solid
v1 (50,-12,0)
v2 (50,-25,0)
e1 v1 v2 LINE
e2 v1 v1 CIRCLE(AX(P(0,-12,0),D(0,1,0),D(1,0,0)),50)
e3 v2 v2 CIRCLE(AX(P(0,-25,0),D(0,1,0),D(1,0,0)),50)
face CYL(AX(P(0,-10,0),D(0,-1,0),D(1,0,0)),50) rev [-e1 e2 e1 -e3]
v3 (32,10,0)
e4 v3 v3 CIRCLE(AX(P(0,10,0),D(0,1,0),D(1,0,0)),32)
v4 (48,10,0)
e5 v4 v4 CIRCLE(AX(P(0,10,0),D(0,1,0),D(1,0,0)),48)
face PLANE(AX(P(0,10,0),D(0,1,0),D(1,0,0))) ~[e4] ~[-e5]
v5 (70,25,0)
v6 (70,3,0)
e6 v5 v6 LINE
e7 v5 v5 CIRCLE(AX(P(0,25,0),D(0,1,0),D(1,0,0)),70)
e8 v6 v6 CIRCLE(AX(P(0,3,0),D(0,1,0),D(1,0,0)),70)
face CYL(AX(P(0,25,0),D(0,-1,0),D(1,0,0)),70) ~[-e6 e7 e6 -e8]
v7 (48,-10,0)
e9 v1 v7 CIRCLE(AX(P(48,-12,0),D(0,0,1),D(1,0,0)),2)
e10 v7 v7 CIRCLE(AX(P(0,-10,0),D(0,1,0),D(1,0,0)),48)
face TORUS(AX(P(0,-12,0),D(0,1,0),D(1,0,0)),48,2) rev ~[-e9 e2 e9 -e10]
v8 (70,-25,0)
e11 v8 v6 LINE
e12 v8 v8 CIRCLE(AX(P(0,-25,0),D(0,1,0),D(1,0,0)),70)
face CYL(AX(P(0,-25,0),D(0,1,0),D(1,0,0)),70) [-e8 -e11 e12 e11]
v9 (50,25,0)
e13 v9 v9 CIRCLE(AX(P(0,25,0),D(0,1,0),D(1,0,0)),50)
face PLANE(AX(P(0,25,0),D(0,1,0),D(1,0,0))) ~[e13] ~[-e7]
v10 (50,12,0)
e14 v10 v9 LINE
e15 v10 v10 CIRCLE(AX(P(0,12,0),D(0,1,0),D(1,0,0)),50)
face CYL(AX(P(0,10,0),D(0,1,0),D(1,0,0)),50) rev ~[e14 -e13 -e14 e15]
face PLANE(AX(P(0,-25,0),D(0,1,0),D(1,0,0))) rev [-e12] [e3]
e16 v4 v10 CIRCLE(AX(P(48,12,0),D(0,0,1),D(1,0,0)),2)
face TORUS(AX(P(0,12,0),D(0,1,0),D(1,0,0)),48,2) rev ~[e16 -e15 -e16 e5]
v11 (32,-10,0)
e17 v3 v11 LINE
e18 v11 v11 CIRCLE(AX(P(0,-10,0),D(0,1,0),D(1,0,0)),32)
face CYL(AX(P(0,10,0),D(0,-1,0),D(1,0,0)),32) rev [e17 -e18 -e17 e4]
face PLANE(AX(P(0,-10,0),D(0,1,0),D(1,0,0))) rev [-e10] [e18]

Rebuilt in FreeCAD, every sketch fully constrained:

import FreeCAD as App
import Part
import Sketcher
from FreeCAD import Vector


def edges_at(feature, points):
    """Names of the edges that pass closest to the given points."""
    edges = feature.Shape.Edges
    near = lambda p: min(range(len(edges)), key=lambda i: edges[i].distToShape(Part.Vertex(*p))[0])
    return sorted({f"Edge{near(p) + 1}" for p in points})


def add_polygon(sketch, points):
    """Adds a closed chain of lines whose ends are joined by coincident constraints."""
    first, n = sketch.GeometryCount, len(points)
    for a, b in zip(points, points[1:] + points[:1]):
        sketch.addGeometry(Part.LineSegment(App.Vector(*a, 0), App.Vector(*b, 0)), False)
    for i in range(n):
        sketch.addConstraint(Sketcher.Constraint("Coincident", first + i, 2, first + (i + 1) % n, 1))

doc = App.newDocument("Part")
body = doc.addObject("PartDesign::Body", "Body")

# Sketch on XY plane
sketch1 = body.newObject("Sketcher::SketchObject", "Sketch")
sketch1.AttachmentSupport = (doc.getObject("XY_Plane"), [""])
sketch1.MapMode = "FlatFace"
add_polygon(sketch1, [(50, 10), (32, 10), (32, -10), (50, -10), (50, -25), (70, -25), (70, 25), (50, 25)])  # lines 0-7
sketch1.addConstraint(Sketcher.Constraint("Horizontal", 0))
sketch1.addConstraint(Sketcher.Constraint("Vertical", 1))
sketch1.addConstraint(Sketcher.Constraint("Horizontal", 2))
sketch1.addConstraint(Sketcher.Constraint("Vertical", 3))
sketch1.addConstraint(Sketcher.Constraint("Horizontal", 4))
sketch1.addConstraint(Sketcher.Constraint("Vertical", 5))
sketch1.addConstraint(Sketcher.Constraint("Horizontal", 6))
sketch1.addConstraint(Sketcher.Constraint("Vertical", 7))
sketch1.addConstraint(Sketcher.Constraint("Symmetric", 3, 2, 6, 2, -1))
sketch1.addConstraint(Sketcher.Constraint("Equal", 6, 1))
sketch1.addConstraint(Sketcher.Constraint("Equal", 3, 7))
sketch1.addConstraint(Sketcher.Constraint("DistanceX", 4, 1, 4, 2, 20.0))
sketch1.addConstraint(Sketcher.Constraint("DistanceY", 3, 2, 3, 1, 15.0))
sketch1.addConstraint(Sketcher.Constraint("DistanceX", -1, 1, 0, 2, 32.0))
sketch1.addConstraint(Sketcher.Constraint("DistanceX", -1, 1, 2, 2, 50.0))
revolution = body.newObject("PartDesign::Revolution", "Revolution")
revolution.Profile = sketch1
revolution.ReferenceAxis = (sketch1, ["V_Axis"])
revolution.Angle = 360
doc.recompute()

fillet = body.newObject("PartDesign::Fillet", "Fillet")
fillet.Base = (revolution, edges_at(revolution, [(-50, 10, 0), (-50, -10, 0)]))
fillet.Radius = 2

doc.recompute()
